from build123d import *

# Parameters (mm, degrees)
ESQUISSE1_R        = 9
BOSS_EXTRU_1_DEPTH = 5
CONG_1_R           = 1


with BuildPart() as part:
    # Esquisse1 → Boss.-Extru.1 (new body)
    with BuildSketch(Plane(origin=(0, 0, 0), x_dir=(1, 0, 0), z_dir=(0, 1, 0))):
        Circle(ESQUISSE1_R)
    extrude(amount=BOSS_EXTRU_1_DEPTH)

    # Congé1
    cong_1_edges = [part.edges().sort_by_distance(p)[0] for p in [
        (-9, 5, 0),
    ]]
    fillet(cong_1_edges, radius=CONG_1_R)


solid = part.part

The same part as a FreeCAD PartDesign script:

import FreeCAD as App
import Part
import Sketcher


def edges_at(feature, points):
    """Names of the edges that pass closest to the given points."""
    edges = feature.Shape.Edges
    near = lambda p: min(range(len(edges)), key=lambda i: edges[i].distToShape(Part.Vertex(*p))[0])
    return sorted({f"Edge{near(p) + 1}" for p in points})

doc = App.newDocument("Part")
body = doc.addObject("PartDesign::Body", "Body")

# Sketch on XZ plane
sketch1 = body.newObject("Sketcher::SketchObject", "Sketch")
sketch1.AttachmentSupport = (doc.getObject("XZ_Plane"), [""])
sketch1.MapMode = "FlatFace"
sketch1.addGeometry(Part.Circle(App.Vector(0, 0, 0), App.Vector(0, 0, 1), 9), False)
sketch1.addConstraint([
    Sketcher.Constraint("Coincident", 0, 3, -1, 1),
    Sketcher.Constraint("Diameter", 0, 18.0),
])
pad1 = body.newObject("PartDesign::Pad", "Pad")
pad1.Profile = sketch1
pad1.Length = 5
pad1.Reversed = True
doc.recompute()

fillet = body.newObject("PartDesign::Fillet", "Fillet")
fillet.Base = (pad1, edges_at(pad1, [(-9, 5, 0)]))
fillet.Radius = 1

doc.recompute()
